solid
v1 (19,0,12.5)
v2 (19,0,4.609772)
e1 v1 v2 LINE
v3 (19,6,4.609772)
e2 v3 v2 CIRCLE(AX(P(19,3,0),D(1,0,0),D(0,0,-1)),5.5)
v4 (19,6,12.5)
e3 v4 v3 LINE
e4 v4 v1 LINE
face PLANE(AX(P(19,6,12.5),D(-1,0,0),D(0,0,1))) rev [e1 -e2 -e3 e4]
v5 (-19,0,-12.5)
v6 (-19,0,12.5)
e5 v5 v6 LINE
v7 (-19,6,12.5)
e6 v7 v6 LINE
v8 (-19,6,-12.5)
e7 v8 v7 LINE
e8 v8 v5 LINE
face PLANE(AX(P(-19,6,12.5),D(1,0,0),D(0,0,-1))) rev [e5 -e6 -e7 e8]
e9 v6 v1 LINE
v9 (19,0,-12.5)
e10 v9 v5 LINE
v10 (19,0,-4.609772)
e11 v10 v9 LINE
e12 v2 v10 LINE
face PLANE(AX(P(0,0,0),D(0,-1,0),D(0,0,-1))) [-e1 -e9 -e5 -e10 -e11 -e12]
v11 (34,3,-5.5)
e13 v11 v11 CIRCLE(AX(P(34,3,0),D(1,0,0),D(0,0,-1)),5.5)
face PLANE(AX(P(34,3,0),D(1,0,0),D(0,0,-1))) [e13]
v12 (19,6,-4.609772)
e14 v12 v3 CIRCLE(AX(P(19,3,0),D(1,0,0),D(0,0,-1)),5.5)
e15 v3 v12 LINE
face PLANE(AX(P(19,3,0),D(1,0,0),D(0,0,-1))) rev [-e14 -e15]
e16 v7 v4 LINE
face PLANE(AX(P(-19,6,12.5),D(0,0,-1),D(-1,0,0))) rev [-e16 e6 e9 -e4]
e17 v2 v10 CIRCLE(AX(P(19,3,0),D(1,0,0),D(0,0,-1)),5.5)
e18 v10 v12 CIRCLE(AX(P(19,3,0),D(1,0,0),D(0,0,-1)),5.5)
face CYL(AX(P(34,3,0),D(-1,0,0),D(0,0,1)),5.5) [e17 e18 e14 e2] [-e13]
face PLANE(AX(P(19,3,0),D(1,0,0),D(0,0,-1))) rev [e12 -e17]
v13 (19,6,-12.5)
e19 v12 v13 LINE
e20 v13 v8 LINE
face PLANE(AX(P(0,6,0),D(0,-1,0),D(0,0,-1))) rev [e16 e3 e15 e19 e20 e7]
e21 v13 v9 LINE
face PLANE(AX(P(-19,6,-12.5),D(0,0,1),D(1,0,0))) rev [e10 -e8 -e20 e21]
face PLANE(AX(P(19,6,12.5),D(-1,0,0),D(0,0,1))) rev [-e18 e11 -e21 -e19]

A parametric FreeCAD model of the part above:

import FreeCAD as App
import Part
import Sketcher
from FreeCAD import Vector
Q = App.Units.Quantity

doc = App.newDocument("Part")
params = doc.addObject("Spreadsheet::Sheet", "Params")
for row, (alias, value) in enumerate([
    ("sketch1_width", "38 mm"),
    ("sketch1_height", "25 mm"),
    ("pad1_length", "6 mm"),
    ("sketch2_diameter", "11 mm"),
    ("pad2_length", "15 mm"),
], start=1):
    params.set(f"A{row}", alias)
    params.set(f"B{row}", "=" + value)
    params.setAlias(f"B{row}", alias)

body = doc.addObject("PartDesign::Body", "Body")

# Sketch on XZ plane
sketch1 = body.newObject("Sketcher::SketchObject", "Sketch")
sketch1.AttachmentSupport = (doc.getObject("XZ_Plane"), [""])
sketch1.MapMode = "FlatFace"
sketch1.addGeometry(Part.LineSegment(Vector(-19, -12, 0), Vector(-19, 12, 0)), False)
sketch1.addGeometry(Part.LineSegment(Vector(-19, 12, 0), Vector(19, 12, 0)), False)
sketch1.addGeometry(Part.LineSegment(Vector(19, 12, 0), Vector(19, -12, 0)), False)
sketch1.addGeometry(Part.LineSegment(Vector(19, -12, 0), Vector(-19, -12, 0)), False)
sketch1.addConstraint(Sketcher.Constraint("Coincident", 0, 2, 1, 1))
sketch1.addConstraint(Sketcher.Constraint("Coincident", 1, 2, 2, 1))
sketch1.addConstraint(Sketcher.Constraint("Coincident", 2, 2, 3, 1))
sketch1.addConstraint(Sketcher.Constraint("Coincident", 3, 2, 0, 1))
sketch1.addConstraint(Sketcher.Constraint("Vertical", 0))
sketch1.addConstraint(Sketcher.Constraint("Horizontal", 1))
sketch1.addConstraint(Sketcher.Constraint("Vertical", 2))
sketch1.addConstraint(Sketcher.Constraint("Horizontal", 3))
sketch1.addConstraint(Sketcher.Constraint("Symmetric", 0, 2, 2, 2, -1, 1))
sketch1.addConstraint(Sketcher.Constraint("DistanceX", 1, 1, 1, 2, Q("38 mm")))
sketch1.addConstraint(Sketcher.Constraint("DistanceY", 0, 1, 0, 2, Q("25 mm")))
sketch1.setExpression("Constraints[9]", "Params.sketch1_width")
sketch1.setExpression("Constraints[10]", "Params.sketch1_height")
pad1 = body.newObject("PartDesign::Pad", "Pad")
pad1.Profile = sketch1
pad1.setExpression("Length", "Params.pad1_length")
pad1.Reversed = True

# Sketch on YZ plane
sketch2 = body.newObject("Sketcher::SketchObject", "Sketch001")
sketch2.AttachmentSupport = (doc.getObject("YZ_Plane"), [""])
sketch2.MapMode = "FlatFace"
sketch2.AttachmentOffset = App.Placement(Vector(0, 0, 19), App.Rotation())
sketch2.addGeometry(Part.Circle(Vector(3, 0, 0), Vector(0, 0, 1), 6), False)
sketch2.addConstraint(Sketcher.Constraint("PointOnObject", 0, 3, -1))
sketch2.addConstraint(Sketcher.Constraint("Diameter", 0, Q("11 mm")))
sketch2.addConstraint(Sketcher.Constraint("DistanceX", -1, 1, 0, 3, Q("3 mm")))
sketch2.setExpression("Constraints[1]", "Params.sketch2_diameter")
pad2 = body.newObject("PartDesign::Pad", "Pad001")
pad2.Profile = sketch2
pad2.setExpression("Length", "Params.pad2_length")

doc.recompute()
